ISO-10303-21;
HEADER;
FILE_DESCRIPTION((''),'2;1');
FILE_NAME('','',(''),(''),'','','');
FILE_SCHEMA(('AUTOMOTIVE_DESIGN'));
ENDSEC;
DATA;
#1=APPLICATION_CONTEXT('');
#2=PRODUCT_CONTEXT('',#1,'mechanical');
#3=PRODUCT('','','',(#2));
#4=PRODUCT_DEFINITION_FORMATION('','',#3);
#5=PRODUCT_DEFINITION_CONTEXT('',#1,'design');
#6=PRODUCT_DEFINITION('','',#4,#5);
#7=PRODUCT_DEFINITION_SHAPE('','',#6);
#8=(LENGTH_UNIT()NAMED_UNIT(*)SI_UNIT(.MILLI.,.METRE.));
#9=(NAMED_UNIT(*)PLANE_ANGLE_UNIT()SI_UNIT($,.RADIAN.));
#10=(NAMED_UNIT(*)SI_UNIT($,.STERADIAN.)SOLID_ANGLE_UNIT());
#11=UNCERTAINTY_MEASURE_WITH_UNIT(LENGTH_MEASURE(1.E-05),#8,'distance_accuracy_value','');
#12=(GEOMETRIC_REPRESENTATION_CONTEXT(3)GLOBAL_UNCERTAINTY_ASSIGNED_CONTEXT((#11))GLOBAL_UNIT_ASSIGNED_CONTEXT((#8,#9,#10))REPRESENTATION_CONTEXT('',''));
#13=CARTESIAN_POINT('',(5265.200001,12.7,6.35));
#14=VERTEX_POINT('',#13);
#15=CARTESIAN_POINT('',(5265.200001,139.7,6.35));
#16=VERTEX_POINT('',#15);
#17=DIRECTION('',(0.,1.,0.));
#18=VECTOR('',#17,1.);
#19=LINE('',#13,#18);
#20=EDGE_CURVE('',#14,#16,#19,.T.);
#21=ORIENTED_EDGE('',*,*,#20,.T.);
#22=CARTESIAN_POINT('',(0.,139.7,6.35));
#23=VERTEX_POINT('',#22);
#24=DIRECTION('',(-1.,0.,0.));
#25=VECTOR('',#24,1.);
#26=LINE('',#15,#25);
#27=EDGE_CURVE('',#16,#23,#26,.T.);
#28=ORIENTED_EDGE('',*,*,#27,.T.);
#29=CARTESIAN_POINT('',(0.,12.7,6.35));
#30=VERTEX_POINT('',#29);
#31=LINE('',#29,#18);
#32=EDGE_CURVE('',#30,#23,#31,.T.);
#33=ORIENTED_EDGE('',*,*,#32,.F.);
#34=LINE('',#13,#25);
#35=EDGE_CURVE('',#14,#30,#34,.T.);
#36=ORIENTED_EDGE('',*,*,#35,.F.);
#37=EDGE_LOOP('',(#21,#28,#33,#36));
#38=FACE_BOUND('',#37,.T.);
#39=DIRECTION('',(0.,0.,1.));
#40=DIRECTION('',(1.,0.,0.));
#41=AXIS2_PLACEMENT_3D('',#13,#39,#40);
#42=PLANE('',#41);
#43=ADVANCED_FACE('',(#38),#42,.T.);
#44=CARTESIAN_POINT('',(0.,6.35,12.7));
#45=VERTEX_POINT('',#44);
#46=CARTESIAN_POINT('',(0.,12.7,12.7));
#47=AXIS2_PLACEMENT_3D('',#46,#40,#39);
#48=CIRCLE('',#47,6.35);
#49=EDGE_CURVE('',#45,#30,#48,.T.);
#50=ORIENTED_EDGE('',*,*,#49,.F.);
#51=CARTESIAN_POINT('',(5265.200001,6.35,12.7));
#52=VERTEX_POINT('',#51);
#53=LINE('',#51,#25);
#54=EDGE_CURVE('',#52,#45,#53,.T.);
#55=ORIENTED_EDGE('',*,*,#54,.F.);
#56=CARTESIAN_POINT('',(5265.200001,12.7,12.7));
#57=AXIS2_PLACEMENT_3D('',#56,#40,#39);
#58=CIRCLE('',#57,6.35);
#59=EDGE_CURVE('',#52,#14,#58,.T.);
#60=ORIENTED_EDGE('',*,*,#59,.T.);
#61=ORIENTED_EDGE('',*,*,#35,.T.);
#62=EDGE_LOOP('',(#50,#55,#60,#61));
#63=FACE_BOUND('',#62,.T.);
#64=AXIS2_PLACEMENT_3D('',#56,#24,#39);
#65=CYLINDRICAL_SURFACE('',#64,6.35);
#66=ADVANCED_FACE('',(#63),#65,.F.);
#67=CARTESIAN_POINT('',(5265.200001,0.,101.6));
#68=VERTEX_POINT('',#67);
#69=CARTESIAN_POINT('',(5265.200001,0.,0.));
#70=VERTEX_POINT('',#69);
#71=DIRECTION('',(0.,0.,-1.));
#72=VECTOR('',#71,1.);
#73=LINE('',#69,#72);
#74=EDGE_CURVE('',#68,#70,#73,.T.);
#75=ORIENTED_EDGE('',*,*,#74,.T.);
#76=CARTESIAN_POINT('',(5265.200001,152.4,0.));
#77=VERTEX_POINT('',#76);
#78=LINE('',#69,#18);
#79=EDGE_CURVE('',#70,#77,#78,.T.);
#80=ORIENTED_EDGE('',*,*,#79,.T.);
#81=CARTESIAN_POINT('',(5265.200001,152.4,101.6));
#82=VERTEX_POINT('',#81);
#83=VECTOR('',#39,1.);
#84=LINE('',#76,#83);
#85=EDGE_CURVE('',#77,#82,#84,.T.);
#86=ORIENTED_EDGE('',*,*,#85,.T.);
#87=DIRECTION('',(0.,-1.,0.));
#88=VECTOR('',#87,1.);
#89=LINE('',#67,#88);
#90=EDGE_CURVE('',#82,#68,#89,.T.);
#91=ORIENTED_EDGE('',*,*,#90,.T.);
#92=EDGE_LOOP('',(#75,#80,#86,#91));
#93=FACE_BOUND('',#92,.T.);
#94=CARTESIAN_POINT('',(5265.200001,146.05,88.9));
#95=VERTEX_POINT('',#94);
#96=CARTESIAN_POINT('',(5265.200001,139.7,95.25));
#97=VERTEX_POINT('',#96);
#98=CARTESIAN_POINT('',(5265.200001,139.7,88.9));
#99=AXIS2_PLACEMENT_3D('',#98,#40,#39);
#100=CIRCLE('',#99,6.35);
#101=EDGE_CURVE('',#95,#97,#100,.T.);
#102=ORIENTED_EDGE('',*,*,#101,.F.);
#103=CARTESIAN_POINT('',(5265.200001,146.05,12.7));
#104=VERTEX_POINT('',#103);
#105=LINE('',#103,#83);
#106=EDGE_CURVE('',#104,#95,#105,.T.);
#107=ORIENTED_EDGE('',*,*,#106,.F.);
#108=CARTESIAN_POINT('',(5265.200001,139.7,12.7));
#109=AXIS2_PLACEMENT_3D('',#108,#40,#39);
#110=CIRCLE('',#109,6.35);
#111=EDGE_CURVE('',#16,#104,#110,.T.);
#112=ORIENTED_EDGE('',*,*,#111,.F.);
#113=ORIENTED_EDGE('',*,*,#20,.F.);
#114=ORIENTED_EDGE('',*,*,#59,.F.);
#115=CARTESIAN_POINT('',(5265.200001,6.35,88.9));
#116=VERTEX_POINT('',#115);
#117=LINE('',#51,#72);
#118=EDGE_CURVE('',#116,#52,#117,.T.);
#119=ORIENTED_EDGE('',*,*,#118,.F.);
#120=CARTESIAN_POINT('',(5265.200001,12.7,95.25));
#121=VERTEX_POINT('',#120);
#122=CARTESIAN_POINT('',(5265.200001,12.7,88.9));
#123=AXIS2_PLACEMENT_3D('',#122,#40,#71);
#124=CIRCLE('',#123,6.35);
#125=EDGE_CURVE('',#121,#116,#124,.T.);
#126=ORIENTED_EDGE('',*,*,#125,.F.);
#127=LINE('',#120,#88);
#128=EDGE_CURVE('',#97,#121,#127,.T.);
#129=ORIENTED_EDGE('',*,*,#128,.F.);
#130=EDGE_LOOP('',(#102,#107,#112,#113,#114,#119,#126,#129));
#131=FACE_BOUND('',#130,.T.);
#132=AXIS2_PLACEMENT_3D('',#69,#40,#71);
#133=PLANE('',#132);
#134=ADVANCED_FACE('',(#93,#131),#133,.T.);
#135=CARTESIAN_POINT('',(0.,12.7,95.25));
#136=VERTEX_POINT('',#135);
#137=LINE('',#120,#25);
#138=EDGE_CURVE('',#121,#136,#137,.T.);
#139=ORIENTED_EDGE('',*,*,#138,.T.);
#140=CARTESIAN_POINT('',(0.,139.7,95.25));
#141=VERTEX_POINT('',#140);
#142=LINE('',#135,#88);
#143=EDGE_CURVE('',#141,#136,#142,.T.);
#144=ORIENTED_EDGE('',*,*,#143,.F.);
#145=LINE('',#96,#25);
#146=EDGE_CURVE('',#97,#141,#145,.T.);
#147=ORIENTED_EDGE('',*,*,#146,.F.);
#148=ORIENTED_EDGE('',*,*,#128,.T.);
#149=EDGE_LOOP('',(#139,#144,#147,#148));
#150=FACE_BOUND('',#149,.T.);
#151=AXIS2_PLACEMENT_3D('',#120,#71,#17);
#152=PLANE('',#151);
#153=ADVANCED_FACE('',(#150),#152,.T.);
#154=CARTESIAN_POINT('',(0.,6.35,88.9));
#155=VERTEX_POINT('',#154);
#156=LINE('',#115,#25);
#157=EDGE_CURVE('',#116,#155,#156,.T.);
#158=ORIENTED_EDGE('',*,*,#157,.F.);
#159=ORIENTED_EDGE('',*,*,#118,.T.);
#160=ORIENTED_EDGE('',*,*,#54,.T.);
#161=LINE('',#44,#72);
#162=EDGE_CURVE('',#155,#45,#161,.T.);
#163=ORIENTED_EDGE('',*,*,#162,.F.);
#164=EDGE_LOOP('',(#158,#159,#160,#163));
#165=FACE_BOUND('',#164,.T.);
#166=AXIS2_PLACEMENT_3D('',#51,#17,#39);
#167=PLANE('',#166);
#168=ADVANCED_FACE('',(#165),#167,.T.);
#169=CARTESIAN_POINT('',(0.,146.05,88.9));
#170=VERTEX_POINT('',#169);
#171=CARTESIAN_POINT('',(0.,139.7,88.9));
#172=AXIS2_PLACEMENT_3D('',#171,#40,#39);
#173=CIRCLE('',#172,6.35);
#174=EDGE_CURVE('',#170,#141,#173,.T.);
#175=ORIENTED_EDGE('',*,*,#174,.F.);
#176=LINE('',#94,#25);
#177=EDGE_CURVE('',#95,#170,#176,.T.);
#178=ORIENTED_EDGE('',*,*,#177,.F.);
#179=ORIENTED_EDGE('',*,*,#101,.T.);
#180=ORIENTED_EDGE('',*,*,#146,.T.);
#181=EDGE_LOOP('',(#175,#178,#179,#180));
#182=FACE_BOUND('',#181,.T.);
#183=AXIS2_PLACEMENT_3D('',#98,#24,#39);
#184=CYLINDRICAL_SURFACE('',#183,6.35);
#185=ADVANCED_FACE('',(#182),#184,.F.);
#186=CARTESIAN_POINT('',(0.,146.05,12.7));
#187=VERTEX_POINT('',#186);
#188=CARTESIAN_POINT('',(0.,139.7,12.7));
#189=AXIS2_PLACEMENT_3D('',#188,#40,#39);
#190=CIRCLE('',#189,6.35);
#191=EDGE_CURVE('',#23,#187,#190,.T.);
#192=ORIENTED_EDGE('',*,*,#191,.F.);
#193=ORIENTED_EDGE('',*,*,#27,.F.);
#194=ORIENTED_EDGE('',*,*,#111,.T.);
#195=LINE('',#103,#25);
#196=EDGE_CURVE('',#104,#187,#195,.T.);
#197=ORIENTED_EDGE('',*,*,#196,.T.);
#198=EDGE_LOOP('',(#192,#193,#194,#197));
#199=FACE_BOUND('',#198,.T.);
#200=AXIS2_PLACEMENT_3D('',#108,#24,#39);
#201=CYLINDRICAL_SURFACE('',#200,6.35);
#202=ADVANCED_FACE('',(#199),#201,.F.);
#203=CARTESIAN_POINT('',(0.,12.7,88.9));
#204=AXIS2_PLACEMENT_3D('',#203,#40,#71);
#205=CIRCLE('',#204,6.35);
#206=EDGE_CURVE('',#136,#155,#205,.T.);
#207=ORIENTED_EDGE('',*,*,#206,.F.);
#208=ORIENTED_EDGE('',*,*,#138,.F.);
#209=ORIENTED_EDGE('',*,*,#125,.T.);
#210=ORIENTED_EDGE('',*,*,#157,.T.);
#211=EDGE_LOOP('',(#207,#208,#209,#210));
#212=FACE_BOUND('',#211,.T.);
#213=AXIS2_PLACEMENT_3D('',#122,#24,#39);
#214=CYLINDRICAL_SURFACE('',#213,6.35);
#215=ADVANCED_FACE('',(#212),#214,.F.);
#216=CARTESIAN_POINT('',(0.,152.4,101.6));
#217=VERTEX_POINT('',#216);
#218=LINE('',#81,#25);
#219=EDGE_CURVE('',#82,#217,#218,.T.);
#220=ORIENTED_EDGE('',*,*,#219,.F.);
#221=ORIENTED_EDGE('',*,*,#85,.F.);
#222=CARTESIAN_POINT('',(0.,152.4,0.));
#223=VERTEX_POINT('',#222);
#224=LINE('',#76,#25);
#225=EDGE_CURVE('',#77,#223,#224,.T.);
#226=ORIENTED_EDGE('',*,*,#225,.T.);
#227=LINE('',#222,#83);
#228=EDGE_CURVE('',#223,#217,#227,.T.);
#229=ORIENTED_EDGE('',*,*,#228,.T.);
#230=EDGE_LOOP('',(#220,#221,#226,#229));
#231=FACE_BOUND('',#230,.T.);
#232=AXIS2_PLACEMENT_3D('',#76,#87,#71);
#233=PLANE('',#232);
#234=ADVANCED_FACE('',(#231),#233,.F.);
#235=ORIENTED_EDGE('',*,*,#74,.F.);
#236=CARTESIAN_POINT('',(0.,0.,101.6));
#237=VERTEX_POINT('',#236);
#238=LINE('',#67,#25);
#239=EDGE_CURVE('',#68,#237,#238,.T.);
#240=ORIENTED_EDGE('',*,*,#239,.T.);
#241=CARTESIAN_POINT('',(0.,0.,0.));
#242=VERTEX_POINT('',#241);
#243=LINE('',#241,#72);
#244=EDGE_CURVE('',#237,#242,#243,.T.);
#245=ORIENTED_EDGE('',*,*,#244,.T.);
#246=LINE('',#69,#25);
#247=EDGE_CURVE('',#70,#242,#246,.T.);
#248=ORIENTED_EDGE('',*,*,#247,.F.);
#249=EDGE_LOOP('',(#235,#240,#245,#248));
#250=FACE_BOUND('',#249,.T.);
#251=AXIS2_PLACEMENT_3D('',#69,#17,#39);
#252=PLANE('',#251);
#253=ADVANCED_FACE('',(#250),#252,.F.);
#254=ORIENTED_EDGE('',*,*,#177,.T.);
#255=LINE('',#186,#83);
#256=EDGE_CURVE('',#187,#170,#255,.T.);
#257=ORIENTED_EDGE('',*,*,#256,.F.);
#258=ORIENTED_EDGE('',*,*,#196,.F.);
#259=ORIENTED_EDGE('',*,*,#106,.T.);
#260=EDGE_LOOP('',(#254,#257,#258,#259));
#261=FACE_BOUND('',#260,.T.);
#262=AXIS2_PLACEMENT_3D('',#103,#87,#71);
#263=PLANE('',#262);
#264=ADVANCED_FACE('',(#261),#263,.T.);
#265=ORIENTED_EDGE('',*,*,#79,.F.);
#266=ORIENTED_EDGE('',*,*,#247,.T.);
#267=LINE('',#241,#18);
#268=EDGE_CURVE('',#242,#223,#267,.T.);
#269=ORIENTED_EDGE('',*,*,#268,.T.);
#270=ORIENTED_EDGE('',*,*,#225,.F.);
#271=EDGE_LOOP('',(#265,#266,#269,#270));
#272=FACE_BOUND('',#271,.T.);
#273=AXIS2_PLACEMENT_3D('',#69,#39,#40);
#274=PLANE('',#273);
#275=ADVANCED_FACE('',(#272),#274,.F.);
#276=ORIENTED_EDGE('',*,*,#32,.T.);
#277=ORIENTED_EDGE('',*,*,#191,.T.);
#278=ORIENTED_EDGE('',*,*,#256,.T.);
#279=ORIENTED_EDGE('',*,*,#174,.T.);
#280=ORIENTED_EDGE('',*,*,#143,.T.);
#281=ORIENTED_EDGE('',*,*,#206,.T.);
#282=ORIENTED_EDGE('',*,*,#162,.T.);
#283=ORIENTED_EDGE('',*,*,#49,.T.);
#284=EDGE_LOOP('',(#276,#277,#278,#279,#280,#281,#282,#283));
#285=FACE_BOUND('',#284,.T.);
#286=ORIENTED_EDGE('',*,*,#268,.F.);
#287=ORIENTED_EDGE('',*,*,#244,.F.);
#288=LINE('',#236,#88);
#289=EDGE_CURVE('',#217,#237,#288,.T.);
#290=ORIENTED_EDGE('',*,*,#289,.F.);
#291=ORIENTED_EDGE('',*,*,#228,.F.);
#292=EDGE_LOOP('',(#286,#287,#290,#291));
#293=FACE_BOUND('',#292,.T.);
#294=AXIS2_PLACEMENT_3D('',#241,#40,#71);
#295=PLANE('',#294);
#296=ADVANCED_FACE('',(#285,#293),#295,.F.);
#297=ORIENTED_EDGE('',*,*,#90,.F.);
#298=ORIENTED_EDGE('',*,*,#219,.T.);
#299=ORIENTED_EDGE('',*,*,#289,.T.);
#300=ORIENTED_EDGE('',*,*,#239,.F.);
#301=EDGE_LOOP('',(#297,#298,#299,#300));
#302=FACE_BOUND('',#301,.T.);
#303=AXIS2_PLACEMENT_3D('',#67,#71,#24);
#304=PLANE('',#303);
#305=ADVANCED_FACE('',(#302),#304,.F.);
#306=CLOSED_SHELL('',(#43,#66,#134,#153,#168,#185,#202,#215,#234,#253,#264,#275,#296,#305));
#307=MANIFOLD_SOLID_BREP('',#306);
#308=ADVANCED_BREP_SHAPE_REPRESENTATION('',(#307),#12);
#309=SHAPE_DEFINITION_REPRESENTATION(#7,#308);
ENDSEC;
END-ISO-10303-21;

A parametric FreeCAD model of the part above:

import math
import FreeCAD as App
import Part
import Sketcher
Q = App.Units.Quantity


def add_polygon(sketch, points):
    """Adds a closed chain of lines whose ends are joined by coincident constraints."""
    first, n = sketch.GeometryCount, len(points)
    for a, b in zip(points, points[1:] + points[:1]):
        sketch.addGeometry(Part.LineSegment(App.Vector(*a, 0), App.Vector(*b, 0)), False)
    for i in range(n):
        sketch.addConstraint(Sketcher.Constraint("Coincident", first + i, 2, first + (i + 1) % n, 1))

doc = App.newDocument("Part")
body = doc.addObject("PartDesign::Body", "Body")

# Sketch on YZ plane
sketch1 = body.newObject("Sketcher::SketchObject", "Sketch")
sketch1.AttachmentSupport = (doc.getObject("YZ_Plane"), [""])
sketch1.MapMode = "FlatFace"
add_polygon(sketch1, [(152, 102), (0, 102), (0, 0), (152, 0)])  # lines 0-3
sketch1.addGeometry(Part.ArcOfCircle(Part.Circle(App.Vector(13, 89, 0), App.Vector(0, 0, 1), 6), math.radians(90), math.radians(180)), False)  # 4
sketch1.addGeometry(Part.LineSegment(App.Vector(13, 95, 0), App.Vector(140, 95, 0)), False)  # 5
sketch1.addGeometry(Part.ArcOfCircle(Part.Circle(App.Vector(140, 89, 0), App.Vector(0, 0, 1), 6), math.radians(0), math.radians(90)), False)  # 6
sketch1.addGeometry(Part.LineSegment(App.Vector(146, 89, 0), App.Vector(146, 13, 0)), False)  # 7
sketch1.addGeometry(Part.ArcOfCircle(Part.Circle(App.Vector(140, 13, 0), App.Vector(0, 0, 1), 6), math.radians(-90), math.radians(0)), False)  # 8
sketch1.addGeometry(Part.LineSegment(App.Vector(140, 6, 0), App.Vector(13, 6, 0)), False)  # 9
sketch1.addGeometry(Part.ArcOfCircle(Part.Circle(App.Vector(13, 13, 0), App.Vector(0, 0, 1), 6), math.radians(180), math.radians(270)), False)  # 10
sketch1.addGeometry(Part.LineSegment(App.Vector(6, 13, 0), App.Vector(6, 89, 0)), False)  # 11
sketch1.addConstraint([
    Sketcher.Constraint("Tangent", 4, 1, 5, 1),
    Sketcher.Constraint("Tangent", 5, 2, 6, 2),
    Sketcher.Constraint("Tangent", 6, 1, 7, 1),
    Sketcher.Constraint("Tangent", 7, 2, 8, 2),
    Sketcher.Constraint("Tangent", 8, 1, 9, 1),
    Sketcher.Constraint("Tangent", 9, 2, 10, 2),
    Sketcher.Constraint("Tangent", 10, 1, 11, 1),
    Sketcher.Constraint("Tangent", 11, 2, 4, 2),
    Sketcher.Constraint("Horizontal", 0),
    Sketcher.Constraint("Vertical", 1),
    Sketcher.Constraint("Horizontal", 2),
    Sketcher.Constraint("Vertical", 3),
    Sketcher.Constraint("Horizontal", 5),
    Sketcher.Constraint("Vertical", 7),
    Sketcher.Constraint("Horizontal", 9),
    Sketcher.Constraint("Vertical", 11),
    Sketcher.Constraint("Coincident", 1, 2, -1, 1),
    Sketcher.Constraint("Equal", 4, 6),
    Sketcher.Constraint("Equal", 6, 8),
    Sketcher.Constraint("Equal", 8, 10),
    Sketcher.Constraint("DistanceX", 0, 2, 0, 1, Q("6 in")),
    Sketcher.Constraint("DistanceX", 5, 1, 5, 2, Q("5 in")),
    Sketcher.Constraint("DistanceY", 1, 2, 1, 1, Q("4 in")),
    Sketcher.Constraint("DistanceY", 7, 2, 7, 1, Q("3 in")),
    Sketcher.Constraint("Radius", 4, Q("0.25 in")),
    Sketcher.Constraint("DistanceX", -1, 1, 4, 3, Q("0.5 in")),
    Sketcher.Constraint("DistanceY", -1, 1, 4, 3, Q("3.5 in")),
])
pad1 = body.newObject("PartDesign::Pad", "Pad")
pad1.Profile = sketch1
pad1.Length = 5265.200001

doc.recompute()
